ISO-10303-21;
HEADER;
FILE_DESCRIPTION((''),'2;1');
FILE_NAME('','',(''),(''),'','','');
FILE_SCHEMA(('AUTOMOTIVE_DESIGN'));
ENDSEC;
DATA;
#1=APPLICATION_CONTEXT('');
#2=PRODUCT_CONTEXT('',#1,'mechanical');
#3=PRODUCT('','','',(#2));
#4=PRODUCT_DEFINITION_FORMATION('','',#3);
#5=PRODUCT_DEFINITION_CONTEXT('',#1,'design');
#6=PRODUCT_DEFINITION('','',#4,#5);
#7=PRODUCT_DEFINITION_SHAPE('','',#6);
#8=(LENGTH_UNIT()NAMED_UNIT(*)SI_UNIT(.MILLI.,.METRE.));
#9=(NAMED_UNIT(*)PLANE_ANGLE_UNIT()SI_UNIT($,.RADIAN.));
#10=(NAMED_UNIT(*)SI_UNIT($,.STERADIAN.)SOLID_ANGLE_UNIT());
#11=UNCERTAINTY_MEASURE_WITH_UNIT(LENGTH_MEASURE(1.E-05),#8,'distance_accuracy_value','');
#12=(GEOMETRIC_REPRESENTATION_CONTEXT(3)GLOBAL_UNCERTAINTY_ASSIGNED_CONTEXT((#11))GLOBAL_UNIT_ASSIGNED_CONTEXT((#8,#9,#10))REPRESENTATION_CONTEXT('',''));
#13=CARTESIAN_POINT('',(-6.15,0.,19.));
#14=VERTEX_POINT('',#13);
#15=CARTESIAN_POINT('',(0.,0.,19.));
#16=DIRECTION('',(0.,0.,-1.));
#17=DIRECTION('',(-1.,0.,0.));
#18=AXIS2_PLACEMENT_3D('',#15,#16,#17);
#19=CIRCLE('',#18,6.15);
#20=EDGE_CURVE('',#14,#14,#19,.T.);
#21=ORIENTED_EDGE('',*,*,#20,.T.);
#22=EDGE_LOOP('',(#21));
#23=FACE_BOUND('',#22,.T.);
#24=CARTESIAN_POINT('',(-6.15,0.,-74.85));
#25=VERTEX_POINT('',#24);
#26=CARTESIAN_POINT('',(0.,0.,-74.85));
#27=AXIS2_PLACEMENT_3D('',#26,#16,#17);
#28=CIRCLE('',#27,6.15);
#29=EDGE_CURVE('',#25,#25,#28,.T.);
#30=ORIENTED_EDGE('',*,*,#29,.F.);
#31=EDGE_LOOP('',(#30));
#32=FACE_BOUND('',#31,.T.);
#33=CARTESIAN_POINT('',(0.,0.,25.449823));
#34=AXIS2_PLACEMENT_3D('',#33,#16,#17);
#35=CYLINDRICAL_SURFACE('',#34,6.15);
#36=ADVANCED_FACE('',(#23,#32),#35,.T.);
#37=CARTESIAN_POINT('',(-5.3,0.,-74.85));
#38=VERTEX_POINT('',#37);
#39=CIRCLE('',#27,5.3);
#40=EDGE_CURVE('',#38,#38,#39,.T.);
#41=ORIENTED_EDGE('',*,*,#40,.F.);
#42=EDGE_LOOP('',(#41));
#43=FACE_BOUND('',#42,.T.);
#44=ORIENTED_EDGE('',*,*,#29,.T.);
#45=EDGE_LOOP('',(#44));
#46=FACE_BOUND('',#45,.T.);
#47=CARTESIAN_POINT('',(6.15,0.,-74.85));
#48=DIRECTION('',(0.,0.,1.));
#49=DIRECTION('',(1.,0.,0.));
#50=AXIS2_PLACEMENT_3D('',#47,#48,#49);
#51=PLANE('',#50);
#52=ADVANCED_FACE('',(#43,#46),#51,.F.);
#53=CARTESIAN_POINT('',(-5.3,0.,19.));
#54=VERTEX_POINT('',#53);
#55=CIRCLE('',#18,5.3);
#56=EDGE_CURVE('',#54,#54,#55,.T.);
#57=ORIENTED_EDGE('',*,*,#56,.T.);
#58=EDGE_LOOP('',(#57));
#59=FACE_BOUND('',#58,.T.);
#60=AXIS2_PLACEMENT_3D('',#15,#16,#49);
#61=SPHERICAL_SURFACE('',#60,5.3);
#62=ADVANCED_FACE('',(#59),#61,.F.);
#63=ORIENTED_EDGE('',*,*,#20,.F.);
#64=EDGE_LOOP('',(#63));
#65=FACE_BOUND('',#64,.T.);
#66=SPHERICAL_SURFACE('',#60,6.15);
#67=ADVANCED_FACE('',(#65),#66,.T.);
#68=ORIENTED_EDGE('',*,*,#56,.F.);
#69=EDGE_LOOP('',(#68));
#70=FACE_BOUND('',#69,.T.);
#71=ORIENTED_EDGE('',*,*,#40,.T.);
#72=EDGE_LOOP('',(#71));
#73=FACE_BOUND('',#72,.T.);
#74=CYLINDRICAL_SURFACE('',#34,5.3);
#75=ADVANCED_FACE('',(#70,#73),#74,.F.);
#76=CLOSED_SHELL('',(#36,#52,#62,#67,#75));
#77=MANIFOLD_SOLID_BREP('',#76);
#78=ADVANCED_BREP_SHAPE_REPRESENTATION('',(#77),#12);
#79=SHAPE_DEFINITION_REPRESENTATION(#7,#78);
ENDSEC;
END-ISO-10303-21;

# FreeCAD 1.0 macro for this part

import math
import FreeCAD as App
import Part
import Sketcher
from FreeCAD import Vector
Q = App.Units.Quantity

doc = App.newDocument("Part")
body = doc.addObject("PartDesign::Body", "Body")

sketch1 = body.newObject("Sketcher::SketchObject", "Sketch")
sketch1.AttachmentSupport = (doc.getObject("XZ_Plane"), [""])
sketch1.MapMode = "FlatFace"
sketch1.addGeometry([
    Part.LineSegment(Vector(0, 24.3, 0), Vector(0, 25.1, 0)),
    Part.ArcOfCircle(Part.Circle(Vector(0, 19, 0), Vector(0, 0, 1), 6.2), math.radians(0), math.radians(90)),
    Part.LineSegment(Vector(6.2, 19, 0), Vector(6.2, -74.8, 0)),
    Part.LineSegment(Vector(6.2, -74.8, 0), Vector(5.3, -74.8, 0)),
    Part.LineSegment(Vector(5.3, -74.8, 0), Vector(5.3, 19, 0)),
    Part.ArcOfCircle(Part.Circle(Vector(0, 19, 0), Vector(0, 0, 1), 5.3), math.radians(0), math.radians(90)),
], False)
sketch1.addConstraint([
    Sketcher.Constraint("Coincident", 0, 2, 1, 2),
    Sketcher.Constraint("Tangent", 1, 1, 2, 1),
    Sketcher.Constraint("Coincident", 2, 2, 3, 1),
    Sketcher.Constraint("Coincident", 3, 2, 4, 1),
    Sketcher.Constraint("Tangent", 4, 2, 5, 1),
    Sketcher.Constraint("Coincident", 5, 2, 0, 1),
    Sketcher.Constraint("Vertical", 0),
    Sketcher.Constraint("Vertical", 2),
    Sketcher.Constraint("Horizontal", 3),
    Sketcher.Constraint("Vertical", 4),
    Sketcher.Constraint("Coincident", 5, 3, 1, 3),
    Sketcher.Constraint("PointOnObject", 1, 3, -2),
    Sketcher.Constraint("PointOnObject", 0, 2, -2),
    Sketcher.Constraint("Radius", 5, Q("5.3 mm")),
    Sketcher.Constraint("Radius", 1, Q("6.15 mm")),
    Sketcher.Constraint("DistanceY", -1, 1, 1, 3, Q("19 mm")),
    Sketcher.Constraint("DistanceY", 2, 2, 0, 2, Q("100 mm")),
])
revolution = body.newObject("PartDesign::Revolution", "Revolution")
revolution.Profile = sketch1
revolution.ReferenceAxis = (sketch1, ["V_Axis"])
revolution.Angle = 360

doc.recompute()
